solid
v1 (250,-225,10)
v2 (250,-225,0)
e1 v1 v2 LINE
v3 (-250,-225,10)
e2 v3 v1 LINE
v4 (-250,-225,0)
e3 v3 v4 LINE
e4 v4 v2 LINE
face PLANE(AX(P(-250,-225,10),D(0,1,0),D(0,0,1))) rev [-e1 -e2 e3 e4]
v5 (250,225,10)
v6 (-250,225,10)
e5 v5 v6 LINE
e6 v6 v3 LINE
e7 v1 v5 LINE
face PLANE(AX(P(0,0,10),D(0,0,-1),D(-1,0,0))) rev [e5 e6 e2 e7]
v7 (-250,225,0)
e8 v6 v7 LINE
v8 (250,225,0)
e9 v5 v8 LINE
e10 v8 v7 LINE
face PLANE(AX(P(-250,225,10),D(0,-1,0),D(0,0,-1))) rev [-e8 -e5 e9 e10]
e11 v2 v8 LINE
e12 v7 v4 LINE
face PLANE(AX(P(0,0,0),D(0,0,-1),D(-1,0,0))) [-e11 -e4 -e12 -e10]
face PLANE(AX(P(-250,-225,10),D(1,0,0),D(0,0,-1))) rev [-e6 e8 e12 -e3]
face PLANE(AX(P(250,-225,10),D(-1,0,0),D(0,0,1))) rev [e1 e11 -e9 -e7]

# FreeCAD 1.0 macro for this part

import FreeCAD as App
import Part
import Sketcher
Q = App.Units.Quantity

doc = App.newDocument("Part")
params = doc.addObject("Spreadsheet::Sheet", "Params")
for row, (alias, value) in enumerate([
    ("sketch1_width", "500 mm"),
    ("sketch1_height", "450 mm"),
    ("pad1_length", "10 mm"),
], start=1):
    params.set(f"A{row}", alias)
    params.set(f"B{row}", "=" + value)
    params.setAlias(f"B{row}", alias)

body = doc.addObject("PartDesign::Body", "Body")

sketch1 = doc.addObject("Sketcher::SketchObject", "Sketch")
body.addObject(sketch1)
sketch1.AttachmentSupport = (doc.XY_Plane, [""])
sketch1.MapMode = "FlatFace"
sketch1.addGeometry([
    Part.LineSegment(App.Vector(-250, 225, 0), App.Vector(-250, -225, 0)),
    Part.LineSegment(App.Vector(-250, -225, 0), App.Vector(250, -225, 0)),
    Part.LineSegment(App.Vector(250, -225, 0), App.Vector(250, 225, 0)),
    Part.LineSegment(App.Vector(250, 225, 0), App.Vector(-250, 225, 0)),
], False)
sketch1.addConstraint([
    Sketcher.Constraint("Coincident", 0, 2, 1, 1),
    Sketcher.Constraint("Coincident", 1, 2, 2, 1),
    Sketcher.Constraint("Coincident", 2, 2, 3, 1),
    Sketcher.Constraint("Coincident", 3, 2, 0, 1),
    Sketcher.Constraint("Vertical", 0),
    Sketcher.Constraint("Horizontal", 1),
    Sketcher.Constraint("Vertical", 2),
    Sketcher.Constraint("Horizontal", 3),
    Sketcher.Constraint("Symmetric", 0, 2, 2, 2, -1, 1),
    Sketcher.Constraint("DistanceX", 1, 1, 1, 2, Q("500 mm")),
    Sketcher.Constraint("DistanceY", 0, 2, 0, 1, Q("450 mm")),
])
sketch1.setExpression("Constraints[9]", "Params.sketch1_width")
sketch1.setExpression("Constraints[10]", "Params.sketch1_height")
pad1 = doc.addObject("PartDesign::Pad", "Pad")
body.addObject(pad1)
pad1.Profile = sketch1
pad1.setExpression("Length", "Params.pad1_length")

doc.recompute()
